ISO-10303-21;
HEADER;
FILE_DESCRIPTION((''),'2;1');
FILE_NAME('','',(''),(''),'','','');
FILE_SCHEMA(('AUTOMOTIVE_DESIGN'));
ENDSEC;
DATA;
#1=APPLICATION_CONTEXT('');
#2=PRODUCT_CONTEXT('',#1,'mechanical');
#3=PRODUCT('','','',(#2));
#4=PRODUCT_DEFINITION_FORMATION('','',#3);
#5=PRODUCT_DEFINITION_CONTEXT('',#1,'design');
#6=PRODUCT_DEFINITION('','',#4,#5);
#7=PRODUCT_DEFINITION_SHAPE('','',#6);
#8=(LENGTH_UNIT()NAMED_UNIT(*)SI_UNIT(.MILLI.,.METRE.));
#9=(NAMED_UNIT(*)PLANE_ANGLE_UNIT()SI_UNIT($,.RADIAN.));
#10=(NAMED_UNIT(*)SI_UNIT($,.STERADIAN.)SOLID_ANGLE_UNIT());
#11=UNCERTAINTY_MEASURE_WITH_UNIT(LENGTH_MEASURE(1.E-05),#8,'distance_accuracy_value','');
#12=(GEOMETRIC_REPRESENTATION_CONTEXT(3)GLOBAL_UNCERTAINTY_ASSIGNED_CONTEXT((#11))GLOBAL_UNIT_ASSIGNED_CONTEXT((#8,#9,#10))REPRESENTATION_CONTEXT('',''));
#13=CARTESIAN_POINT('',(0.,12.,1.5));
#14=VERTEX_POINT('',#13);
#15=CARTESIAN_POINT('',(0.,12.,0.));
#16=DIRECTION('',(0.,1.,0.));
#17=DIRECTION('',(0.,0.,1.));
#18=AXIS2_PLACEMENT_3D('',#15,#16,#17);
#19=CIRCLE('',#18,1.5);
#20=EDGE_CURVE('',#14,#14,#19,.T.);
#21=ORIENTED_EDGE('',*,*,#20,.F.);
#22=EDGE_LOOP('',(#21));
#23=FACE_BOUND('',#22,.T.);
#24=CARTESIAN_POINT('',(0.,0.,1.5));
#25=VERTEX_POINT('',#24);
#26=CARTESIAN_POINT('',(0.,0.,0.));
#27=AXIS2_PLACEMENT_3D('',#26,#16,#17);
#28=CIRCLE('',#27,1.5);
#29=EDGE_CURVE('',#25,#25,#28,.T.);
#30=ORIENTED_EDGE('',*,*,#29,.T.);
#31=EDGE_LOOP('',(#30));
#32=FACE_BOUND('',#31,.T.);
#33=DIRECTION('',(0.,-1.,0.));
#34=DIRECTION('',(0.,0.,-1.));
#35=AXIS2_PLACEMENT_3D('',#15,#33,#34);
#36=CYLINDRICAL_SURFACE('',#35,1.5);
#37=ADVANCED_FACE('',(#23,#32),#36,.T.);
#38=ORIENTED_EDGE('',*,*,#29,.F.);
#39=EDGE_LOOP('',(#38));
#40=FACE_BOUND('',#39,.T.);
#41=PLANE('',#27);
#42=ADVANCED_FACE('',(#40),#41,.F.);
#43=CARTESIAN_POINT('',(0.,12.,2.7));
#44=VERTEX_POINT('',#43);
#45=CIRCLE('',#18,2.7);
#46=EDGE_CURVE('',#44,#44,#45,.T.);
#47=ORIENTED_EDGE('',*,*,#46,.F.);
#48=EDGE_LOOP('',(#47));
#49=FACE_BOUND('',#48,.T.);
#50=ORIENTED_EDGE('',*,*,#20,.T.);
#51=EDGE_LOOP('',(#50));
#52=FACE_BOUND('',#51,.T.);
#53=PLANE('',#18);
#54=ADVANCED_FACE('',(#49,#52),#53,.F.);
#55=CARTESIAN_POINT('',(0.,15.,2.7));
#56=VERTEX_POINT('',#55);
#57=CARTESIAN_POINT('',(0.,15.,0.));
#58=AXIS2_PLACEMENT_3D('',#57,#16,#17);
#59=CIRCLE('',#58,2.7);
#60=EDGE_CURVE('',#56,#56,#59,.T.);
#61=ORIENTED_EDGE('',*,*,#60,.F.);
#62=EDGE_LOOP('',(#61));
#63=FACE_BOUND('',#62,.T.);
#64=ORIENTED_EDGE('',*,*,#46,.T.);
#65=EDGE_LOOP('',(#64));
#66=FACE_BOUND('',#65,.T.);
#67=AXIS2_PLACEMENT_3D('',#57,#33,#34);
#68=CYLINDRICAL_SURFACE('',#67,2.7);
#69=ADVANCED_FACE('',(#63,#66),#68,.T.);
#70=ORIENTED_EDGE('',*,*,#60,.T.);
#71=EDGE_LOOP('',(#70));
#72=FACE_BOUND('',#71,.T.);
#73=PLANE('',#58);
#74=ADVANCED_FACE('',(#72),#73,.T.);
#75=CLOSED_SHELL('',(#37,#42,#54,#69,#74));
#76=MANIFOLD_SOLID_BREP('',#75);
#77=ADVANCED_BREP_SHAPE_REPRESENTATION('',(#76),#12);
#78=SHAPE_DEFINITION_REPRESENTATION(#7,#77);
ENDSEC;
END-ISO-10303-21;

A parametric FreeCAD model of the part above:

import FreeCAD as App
import Part
import Sketcher

V = App.Vector
Q = App.Units.Quantity

doc = App.newDocument("Part")
params = doc.addObject("Spreadsheet::Sheet", "Params")
for row, (alias, value) in enumerate([
    ("sketch1_diameter", "3 mm"),
    ("pad1_length", "12 mm"),
    ("sketch2_diameter", "5.4 mm"),
    ("pad2_length", "3 mm"),
], start=1):
    params.set(f"A{row}", alias)
    params.set(f"B{row}", "=" + value)
    params.setAlias(f"B{row}", alias)

body = doc.addObject("PartDesign::Body", "Body")

# Sketch on XZ plane
sketch1 = body.newObject("Sketcher::SketchObject", "Sketch")
sketch1.AttachmentSupport = (doc.getObject("XZ_Plane"), [""])
sketch1.MapMode = "FlatFace"
sketch1.addGeometry(Part.Circle(V(0, 0, 0), V(0, 0, 1), 1.5), False)
sketch1.addConstraint([
    Sketcher.Constraint("Coincident", 0, 3, -1, 1),
    Sketcher.Constraint("Diameter", 0, Q("3 mm")),
])
sketch1.setExpression("Constraints[1]", "Params.sketch1_diameter")
pad1 = body.newObject("PartDesign::Pad", "Pad")
pad1.Profile = sketch1
pad1.setExpression("Length", "Params.pad1_length")
pad1.Reversed = True

# Sketch on XZ plane
sketch2 = body.newObject("Sketcher::SketchObject", "Sketch001")
sketch2.AttachmentSupport = (doc.getObject("XZ_Plane"), [""])
sketch2.MapMode = "FlatFace"
sketch2.AttachmentOffset = App.Placement(V(0, 0, -12), App.Rotation())
sketch2.addGeometry(Part.Circle(V(0, 0, 0), V(0, 0, 1), 2.7), False)
sketch2.addConstraint([
    Sketcher.Constraint("Coincident", 0, 3, -1, 1),
    Sketcher.Constraint("Diameter", 0, Q("5.4 mm")),
])
sketch2.setExpression("Constraints[1]", "Params.sketch2_diameter")
pad2 = body.newObject("PartDesign::Pad", "Pad001")
pad2.Profile = sketch2
pad2.setExpression("Length", "Params.pad2_length")
pad2.Reversed = True

doc.recompute()
